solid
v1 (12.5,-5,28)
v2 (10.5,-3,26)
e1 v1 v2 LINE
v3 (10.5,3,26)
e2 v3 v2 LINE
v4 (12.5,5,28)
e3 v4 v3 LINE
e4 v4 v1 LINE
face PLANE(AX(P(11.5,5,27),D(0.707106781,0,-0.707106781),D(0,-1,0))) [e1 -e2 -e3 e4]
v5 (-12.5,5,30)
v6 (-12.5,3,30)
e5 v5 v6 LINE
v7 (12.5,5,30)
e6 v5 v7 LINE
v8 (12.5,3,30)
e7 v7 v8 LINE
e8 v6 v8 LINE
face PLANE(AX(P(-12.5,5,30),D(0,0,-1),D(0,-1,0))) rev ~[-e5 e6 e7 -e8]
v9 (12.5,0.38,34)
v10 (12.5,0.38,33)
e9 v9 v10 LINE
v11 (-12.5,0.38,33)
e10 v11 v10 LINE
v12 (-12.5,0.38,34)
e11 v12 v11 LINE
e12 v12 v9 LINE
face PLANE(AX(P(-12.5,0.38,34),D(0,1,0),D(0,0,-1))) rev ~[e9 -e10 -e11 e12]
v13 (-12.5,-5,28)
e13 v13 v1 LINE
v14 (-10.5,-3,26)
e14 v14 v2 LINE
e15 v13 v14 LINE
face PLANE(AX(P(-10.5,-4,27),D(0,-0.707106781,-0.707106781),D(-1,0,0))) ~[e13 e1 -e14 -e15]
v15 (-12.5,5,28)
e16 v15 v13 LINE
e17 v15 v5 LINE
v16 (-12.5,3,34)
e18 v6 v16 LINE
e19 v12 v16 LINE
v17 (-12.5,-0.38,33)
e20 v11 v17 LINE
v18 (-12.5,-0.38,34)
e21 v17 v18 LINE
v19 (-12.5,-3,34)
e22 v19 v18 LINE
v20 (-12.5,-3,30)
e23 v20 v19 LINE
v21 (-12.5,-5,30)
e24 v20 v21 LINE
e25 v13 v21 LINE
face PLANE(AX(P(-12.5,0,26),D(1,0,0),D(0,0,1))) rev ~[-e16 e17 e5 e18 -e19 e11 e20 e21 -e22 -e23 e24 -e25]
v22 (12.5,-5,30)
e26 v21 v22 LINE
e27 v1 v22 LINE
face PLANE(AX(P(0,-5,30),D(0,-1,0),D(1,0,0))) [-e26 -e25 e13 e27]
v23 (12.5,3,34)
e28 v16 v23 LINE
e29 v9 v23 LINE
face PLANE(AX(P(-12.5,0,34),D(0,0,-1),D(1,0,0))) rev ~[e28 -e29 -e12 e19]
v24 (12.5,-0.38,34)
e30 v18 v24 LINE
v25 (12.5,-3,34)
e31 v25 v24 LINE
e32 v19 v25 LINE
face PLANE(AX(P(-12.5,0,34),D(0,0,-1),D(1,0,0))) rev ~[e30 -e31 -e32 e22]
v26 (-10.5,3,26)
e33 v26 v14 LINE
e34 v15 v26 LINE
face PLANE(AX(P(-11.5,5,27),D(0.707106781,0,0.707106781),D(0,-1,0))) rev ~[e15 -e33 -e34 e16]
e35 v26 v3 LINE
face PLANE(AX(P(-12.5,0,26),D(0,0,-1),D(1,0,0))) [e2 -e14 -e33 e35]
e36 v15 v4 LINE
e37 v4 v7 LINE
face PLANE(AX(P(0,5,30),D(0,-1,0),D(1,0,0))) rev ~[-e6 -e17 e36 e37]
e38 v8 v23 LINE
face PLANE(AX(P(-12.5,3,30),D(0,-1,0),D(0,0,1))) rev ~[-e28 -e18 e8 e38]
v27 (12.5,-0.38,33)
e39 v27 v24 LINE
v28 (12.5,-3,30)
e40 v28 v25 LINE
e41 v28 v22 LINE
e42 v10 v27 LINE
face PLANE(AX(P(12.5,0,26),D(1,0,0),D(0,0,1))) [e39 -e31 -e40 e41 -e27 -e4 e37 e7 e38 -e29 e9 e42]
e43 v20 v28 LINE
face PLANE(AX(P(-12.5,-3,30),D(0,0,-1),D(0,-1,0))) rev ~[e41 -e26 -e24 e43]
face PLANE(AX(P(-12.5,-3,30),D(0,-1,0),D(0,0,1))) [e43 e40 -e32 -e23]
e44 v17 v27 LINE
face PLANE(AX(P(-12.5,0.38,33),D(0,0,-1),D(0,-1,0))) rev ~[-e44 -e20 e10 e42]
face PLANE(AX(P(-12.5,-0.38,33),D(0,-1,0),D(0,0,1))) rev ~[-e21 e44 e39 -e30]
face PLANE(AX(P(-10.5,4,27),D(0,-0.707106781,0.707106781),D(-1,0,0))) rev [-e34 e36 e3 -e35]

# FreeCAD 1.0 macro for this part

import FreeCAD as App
import Part
import Sketcher

V = App.Vector


def edges_at(feature, points):
    """Names of the edges that pass closest to the given points."""
    edges = feature.Shape.Edges
    near = lambda p: min(range(len(edges)), key=lambda i: edges[i].distToShape(Part.Vertex(*p))[0])
    return sorted({f"Edge{near(p) + 1}" for p in points})


def add_polygon(sketch, points):
    """Adds a closed chain of lines whose ends are joined by coincident constraints."""
    first, n = sketch.GeometryCount, len(points)
    for a, b in zip(points, points[1:] + points[:1]):
        sketch.addGeometry(Part.LineSegment(App.Vector(*a, 0), App.Vector(*b, 0)), False)
    for i in range(n):
        sketch.addConstraint(Sketcher.Constraint("Coincident", first + i, 2, first + (i + 1) % n, 1))

doc = App.newDocument("Part")
body = doc.addObject("PartDesign::Body", "Body")

# Sketch on XZ plane
sketch1 = body.newObject("Sketcher::SketchObject", "Sketch")
sketch1.AttachmentSupport = (doc.getObject("XZ_Plane"), [""])
sketch1.MapMode = "FlatFace"
add_polygon(sketch1, [(-12.5, 34), (-12.5, 26), (12.5, 26), (12.5, 34)])  # lines 0-3
sketch1.addConstraint([
    Sketcher.Constraint("Vertical", 0),
    Sketcher.Constraint("Horizontal", 1),
    Sketcher.Constraint("Vertical", 2),
    Sketcher.Constraint("Horizontal", 3),
    Sketcher.Constraint("DistanceX", 1, 1, 1, 2, 25.0),
    Sketcher.Constraint("DistanceY", 0, 2, 0, 1, 8.0),
    Sketcher.Constraint("DistanceY", -1, 1, 0, 2, 26.0),
    Sketcher.Constraint("DistanceX", 0, 2, -1, 1, 12.5),
])
pad1 = body.newObject("PartDesign::Pad", "Pad")
pad1.Profile = sketch1
pad1.Length = 10
pad1.Midplane = True
doc.recompute()

chamfer = body.newObject("PartDesign::Chamfer", "Chamfer")
chamfer.Base = (pad1, edges_at(pad1, [(12.5, 0, 26), (-12.5, 0, 26)]))
chamfer.Size = 2
doc.recompute()

chamfer2 = body.newObject("PartDesign::Chamfer", "Chamfer001")
chamfer2.Base = (chamfer, edges_at(chamfer, [(0, -5, 26), (0, 5, 26)]))
chamfer2.Size = 2

# Sketch on YZ plane
sketch2 = body.newObject("Sketcher::SketchObject", "Sketch001")
sketch2.AttachmentSupport = (doc.getObject("YZ_Plane"), [""])
sketch2.MapMode = "FlatFace"
sketch2.AttachmentOffset = App.Placement(V(0, 0, -12.5), App.Rotation())
add_polygon(sketch2, [(-3, 34), (-3, 30), (-5, 30), (-5, 34)])  # lines 0-3
add_polygon(sketch2, [(5, 34), (5, 30), (3, 30), (3, 34)])  # lines 4-7
add_polygon(sketch2, [(0.38, 33), (-0.38, 33), (-0.38, 34), (0.38, 34)])  # lines 8-11
sketch2.addConstraint([
    Sketcher.Constraint("Vertical", 0),
    Sketcher.Constraint("Horizontal", 1),
    Sketcher.Constraint("Vertical", 2),
    Sketcher.Constraint("Horizontal", 3),
    Sketcher.Constraint("Vertical", 4),
    Sketcher.Constraint("Horizontal", 5),
    Sketcher.Constraint("Vertical", 6),
    Sketcher.Constraint("Horizontal", 7),
    Sketcher.Constraint("Horizontal", 8),
    Sketcher.Constraint("Vertical", 9),
    Sketcher.Constraint("Horizontal", 10),
    Sketcher.Constraint("Vertical", 11),
    Sketcher.Constraint("Symmetric", 1, 2, 4, 2, -2),
    Sketcher.Constraint("Symmetric", 3, 2, 6, 2, -2),
    Sketcher.Constraint("Horizontal", 7, 2, 9, 2),
    Sketcher.Constraint("DistanceX", 1, 2, 1, 1, 2.0),
    Sketcher.Constraint("DistanceY", 0, 2, 0, 1, 4.0),
    Sketcher.Constraint("DistanceY", 9, 1, 9, 2, 1.0),
    Sketcher.Constraint("DistanceX", 0, 2, -1, 1, 3.0),
    Sketcher.Constraint("DistanceY", -1, 1, 0, 2, 30.0),
    Sketcher.Constraint("DistanceX", 8, 2, 8, 1, 0.76),
    Sketcher.Constraint("DistanceX", 8, 2, -1, 1, 0.38),
])
pocket1 = body.newObject("PartDesign::Pocket", "Pocket")
pocket1.Profile = sketch2
pocket1.Length = 25
pocket1.Reversed = True

doc.recompute()
